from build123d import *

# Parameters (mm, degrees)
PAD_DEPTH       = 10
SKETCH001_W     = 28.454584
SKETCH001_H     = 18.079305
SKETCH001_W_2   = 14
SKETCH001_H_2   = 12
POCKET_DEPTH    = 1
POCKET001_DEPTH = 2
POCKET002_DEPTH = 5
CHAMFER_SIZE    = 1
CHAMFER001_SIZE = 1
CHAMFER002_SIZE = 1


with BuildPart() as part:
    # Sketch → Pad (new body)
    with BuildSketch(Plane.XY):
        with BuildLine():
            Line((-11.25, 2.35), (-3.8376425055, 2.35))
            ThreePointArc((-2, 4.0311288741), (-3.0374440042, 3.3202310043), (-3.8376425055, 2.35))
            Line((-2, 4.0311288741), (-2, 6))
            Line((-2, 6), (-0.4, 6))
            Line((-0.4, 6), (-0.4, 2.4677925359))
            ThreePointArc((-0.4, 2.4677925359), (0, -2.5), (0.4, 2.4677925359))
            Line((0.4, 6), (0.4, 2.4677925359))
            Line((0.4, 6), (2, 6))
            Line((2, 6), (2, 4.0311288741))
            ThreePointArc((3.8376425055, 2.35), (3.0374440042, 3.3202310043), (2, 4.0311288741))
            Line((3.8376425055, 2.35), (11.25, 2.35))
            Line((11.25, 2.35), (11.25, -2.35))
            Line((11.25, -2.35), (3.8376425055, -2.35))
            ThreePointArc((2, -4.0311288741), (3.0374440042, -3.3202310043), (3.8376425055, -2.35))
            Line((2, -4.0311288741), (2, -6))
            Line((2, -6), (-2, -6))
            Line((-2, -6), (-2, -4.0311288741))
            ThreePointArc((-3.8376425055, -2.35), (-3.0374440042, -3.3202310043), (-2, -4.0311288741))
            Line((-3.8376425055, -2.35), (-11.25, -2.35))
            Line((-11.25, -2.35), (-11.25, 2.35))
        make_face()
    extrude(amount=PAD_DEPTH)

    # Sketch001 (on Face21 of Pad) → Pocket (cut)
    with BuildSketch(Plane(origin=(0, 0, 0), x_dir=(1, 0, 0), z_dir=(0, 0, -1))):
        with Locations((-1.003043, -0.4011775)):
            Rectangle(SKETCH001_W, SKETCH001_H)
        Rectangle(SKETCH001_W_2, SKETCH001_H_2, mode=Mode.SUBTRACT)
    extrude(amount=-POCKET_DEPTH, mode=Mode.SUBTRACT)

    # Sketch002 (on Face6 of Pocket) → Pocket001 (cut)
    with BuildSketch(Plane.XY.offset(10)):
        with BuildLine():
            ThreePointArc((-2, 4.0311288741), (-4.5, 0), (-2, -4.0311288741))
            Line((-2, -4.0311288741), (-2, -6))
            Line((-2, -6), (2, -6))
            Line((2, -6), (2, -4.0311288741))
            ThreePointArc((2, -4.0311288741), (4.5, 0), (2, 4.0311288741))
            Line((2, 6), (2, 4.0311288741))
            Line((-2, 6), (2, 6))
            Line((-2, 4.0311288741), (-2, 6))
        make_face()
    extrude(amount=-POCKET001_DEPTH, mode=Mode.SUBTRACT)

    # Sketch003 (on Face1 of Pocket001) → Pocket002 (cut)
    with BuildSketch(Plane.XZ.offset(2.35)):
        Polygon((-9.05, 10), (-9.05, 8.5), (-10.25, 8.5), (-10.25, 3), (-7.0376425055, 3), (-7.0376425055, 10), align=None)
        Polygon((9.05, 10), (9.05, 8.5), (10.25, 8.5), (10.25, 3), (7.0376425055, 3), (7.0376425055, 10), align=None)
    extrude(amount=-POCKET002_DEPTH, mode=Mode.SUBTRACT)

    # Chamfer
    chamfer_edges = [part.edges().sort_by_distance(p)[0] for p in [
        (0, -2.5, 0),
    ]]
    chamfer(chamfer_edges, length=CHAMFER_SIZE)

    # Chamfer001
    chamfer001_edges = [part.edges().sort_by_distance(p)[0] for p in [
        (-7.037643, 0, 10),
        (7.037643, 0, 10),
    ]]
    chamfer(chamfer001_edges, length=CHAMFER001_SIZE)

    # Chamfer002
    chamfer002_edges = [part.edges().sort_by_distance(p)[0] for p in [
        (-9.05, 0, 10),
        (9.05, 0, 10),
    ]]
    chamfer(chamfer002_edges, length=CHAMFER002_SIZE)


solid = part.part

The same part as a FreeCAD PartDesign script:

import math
import FreeCAD as App
import Part
import Sketcher

V = App.Vector
Q = App.Units.Quantity


def edges_at(feature, points):
    """Names of the edges that pass closest to the given points."""
    edges = feature.Shape.Edges
    near = lambda p: min(range(len(edges)), key=lambda i: edges[i].distToShape(Part.Vertex(*p))[0])
    return sorted({f"Edge{near(p) + 1}" for p in points})


def add_polygon(sketch, points):
    """Adds a closed chain of lines whose ends are joined by coincident constraints."""
    first, n = sketch.GeometryCount, len(points)
    for a, b in zip(points, points[1:] + points[:1]):
        sketch.addGeometry(Part.LineSegment(App.Vector(*a, 0), App.Vector(*b, 0)), False)
    for i in range(n):
        sketch.addConstraint(Sketcher.Constraint("Coincident", first + i, 2, first + (i + 1) % n, 1))

doc = App.newDocument("Part")
body = doc.addObject("PartDesign::Body", "Body")

sketch1 = doc.addObject("Sketcher::SketchObject", "Sketch")
body.addObject(sketch1)
sketch1.AttachmentSupport = (doc.XY_Plane, [""])
sketch1.MapMode = "FlatFace"
sketch1.addGeometry([
    Part.LineSegment(V(-3.8, 2.4, 0), V(-11.2, 2.4, 0)),
    Part.LineSegment(V(-11.2, 2.4, 0), V(-11.2, -2.4, 0)),
    Part.LineSegment(V(-11.2, -2.4, 0), V(-3.8, -2.4, 0)),
    Part.ArcOfCircle(Part.Circle(V(0, 0, 0), V(0, 0, 1), 4.5), math.radians(-149), math.radians(-116)),
    Part.LineSegment(V(-2, -4, 0), V(-2, -6, 0)),
    Part.LineSegment(V(-2, -6, 0), V(2, -6, 0)),
    Part.LineSegment(V(2, -6, 0), V(2, -4, 0)),
    Part.ArcOfCircle(Part.Circle(V(0, 0, 0), V(0, 0, 1), 4.5), math.radians(-64), math.radians(-31)),
    Part.LineSegment(V(3.8, -2.4, 0), V(11.2, -2.4, 0)),
    Part.LineSegment(V(11.2, -2.4, 0), V(11.2, 2.4, 0)),
    Part.LineSegment(V(11.2, 2.4, 0), V(3.8, 2.4, 0)),
    Part.ArcOfCircle(Part.Circle(V(0, 0, 0), V(0, 0, 1), 4.5), math.radians(31), math.radians(64)),
    Part.LineSegment(V(2, 4, 0), V(2, 6, 0)),
    Part.LineSegment(V(2, 6, 0), V(0.4, 6, 0)),
    Part.LineSegment(V(0.4, 6, 0), V(0.4, 2.5, 0)),
    Part.ArcOfCircle(Part.Circle(V(0, 0, 0), V(0, 0, 1), 2.5), math.radians(99), math.radians(441)),
    Part.LineSegment(V(-0.4, 2.5, 0), V(-0.4, 6, 0)),
    Part.LineSegment(V(-0.4, 6, 0), V(-2, 6, 0)),
    Part.LineSegment(V(-2, 6, 0), V(-2, 4, 0)),
    Part.ArcOfCircle(Part.Circle(V(0, 0, 0), V(0, 0, 1), 4.5), math.radians(116), math.radians(149)),
], False)
sketch1.addConstraint([
    Sketcher.Constraint("Coincident", 0, 2, 1, 1),
    Sketcher.Constraint("Coincident", 1, 2, 2, 1),
    Sketcher.Constraint("Coincident", 2, 2, 3, 1),
    Sketcher.Constraint("Coincident", 3, 2, 4, 1),
    Sketcher.Constraint("Coincident", 4, 2, 5, 1),
    Sketcher.Constraint("Coincident", 5, 2, 6, 1),
    Sketcher.Constraint("Coincident", 6, 2, 7, 1),
    Sketcher.Constraint("Coincident", 7, 2, 8, 1),
    Sketcher.Constraint("Coincident", 8, 2, 9, 1),
    Sketcher.Constraint("Coincident", 9, 2, 10, 1),
    Sketcher.Constraint("Coincident", 10, 2, 11, 1),
    Sketcher.Constraint("Coincident", 11, 2, 12, 1),
    Sketcher.Constraint("Coincident", 12, 2, 13, 1),
    Sketcher.Constraint("Coincident", 13, 2, 14, 1),
    Sketcher.Constraint("Coincident", 14, 2, 15, 2),
    Sketcher.Constraint("Coincident", 15, 1, 16, 1),
    Sketcher.Constraint("Coincident", 16, 2, 17, 1),
    Sketcher.Constraint("Coincident", 17, 2, 18, 1),
    Sketcher.Constraint("Coincident", 18, 2, 19, 1),
    Sketcher.Constraint("Coincident", 19, 2, 0, 1),
    Sketcher.Constraint("Horizontal", 0),
    Sketcher.Constraint("Vertical", 1),
    Sketcher.Constraint("Horizontal", 2),
    Sketcher.Constraint("Vertical", 4),
    Sketcher.Constraint("Horizontal", 5),
    Sketcher.Constraint("Vertical", 6),
    Sketcher.Constraint("Horizontal", 8),
    Sketcher.Constraint("Vertical", 9),
    Sketcher.Constraint("Horizontal", 10),
    Sketcher.Constraint("Vertical", 12),
    Sketcher.Constraint("Horizontal", 13),
    Sketcher.Constraint("Vertical", 14),
    Sketcher.Constraint("Vertical", 16),
    Sketcher.Constraint("Horizontal", 17),
    Sketcher.Constraint("Vertical", 18),
    Sketcher.Constraint("Coincident", 3, 3, -1, 1),
    Sketcher.Constraint("Coincident", 7, 3, -1, 1),
    Sketcher.Constraint("Coincident", 11, 3, -1, 1),
    Sketcher.Constraint("Coincident", 15, 3, -1, 1),
    Sketcher.Constraint("Coincident", 19, 3, -1, 1),
    Sketcher.Constraint("Equal", 3, 7),
    Sketcher.Constraint("Equal", 7, 11),
    Sketcher.Constraint("Equal", 11, 19),
    Sketcher.Constraint("Symmetric", 0, 2, 8, 2, -1, 1),
    Sketcher.Constraint("Symmetric", 4, 2, 12, 2, -1, 1),
    Sketcher.Constraint("Symmetric", 5, 2, 17, 2, -1, 1),
    Sketcher.Constraint("Horizontal", 3, 2, 6, 2),
    Sketcher.Constraint("Horizontal", 2, 2, 7, 2),
    Sketcher.Constraint("Horizontal", 0, 2, 9, 2),
    Sketcher.Constraint("Horizontal", 14, 2, 15, 1),
    Sketcher.Constraint("Radius", 3, Q("4.5 mm")),
    Sketcher.Constraint("Radius", 15, Q("2.5 mm")),
    Sketcher.Constraint("DistanceX", 5, 1, 5, 2, Q("4 mm")),
    Sketcher.Constraint("DistanceX", 13, 2, 13, 1, Q("1.6 mm")),
    Sketcher.Constraint("DistanceY", 1, 2, 1, 1, Q("4.7 mm")),
    Sketcher.Constraint("DistanceY", 4, 2, -1, 1, Q("6 mm")),
    Sketcher.Constraint("DistanceX", 0, 2, -1, 1, Q("11.25 mm")),
])
pad1 = doc.addObject("PartDesign::Pad", "Pad")
body.addObject(pad1)
pad1.Profile = sketch1
pad1.Length = 10

sketch2 = doc.addObject("Sketcher::SketchObject", "Sketch001")
body.addObject(sketch2)
sketch2.AttachmentSupport = (doc.XY_Plane, [""])
sketch2.MapMode = "FlatFace"
add_polygon(sketch2, [(-15, -9), (-15, 9), (13, 9), (13, -9)])
add_polygon(sketch2, [(7, 6), (-7, 6), (-7, -6), (7, -6)])
sketch2.addConstraint([
    Sketcher.Constraint("Vertical", 0),
    Sketcher.Constraint("Horizontal", 1),
    Sketcher.Constraint("Vertical", 2),
    Sketcher.Constraint("Horizontal", 3),
    Sketcher.Constraint("Horizontal", 4),
    Sketcher.Constraint("Vertical", 5),
    Sketcher.Constraint("Horizontal", 6),
    Sketcher.Constraint("Vertical", 7),
    Sketcher.Constraint("Symmetric", 4, 2, 6, 2, -1, 1),
    Sketcher.Constraint("DistanceX", 4, 2, 4, 1, Q("14 mm")),
    Sketcher.Constraint("DistanceY", 5, 2, 5, 1, Q("12 mm")),
    Sketcher.Constraint("DistanceX", 1, 1, 1, 2, Q("28.454584 mm")),
    Sketcher.Constraint("DistanceY", 0, 1, 0, 2, Q("18.079305 mm")),
    Sketcher.Constraint("DistanceY", -1, 1, 0, 2, Q("9.44083 mm")),
    Sketcher.Constraint("DistanceX", -1, 1, 1, 2, Q("13.224249 mm")),
])
pocket1 = doc.addObject("PartDesign::Pocket", "Pocket")
body.addObject(pocket1)
pocket1.Profile = sketch2
pocket1.Length = 1
pocket1.Reversed = True

sketch3 = doc.addObject("Sketcher::SketchObject", "Sketch002")
body.addObject(sketch3)
sketch3.AttachmentSupport = (doc.XY_Plane, [""])
sketch3.MapMode = "FlatFace"
sketch3.AttachmentOffset = App.Placement(V(0, 0, 10), App.Rotation())
sketch3.addGeometry([
    Part.ArcOfCircle(Part.Circle(V(0, 0, 0), V(0, 0, 1), 4.5), math.radians(116), math.radians(244)),
    Part.LineSegment(V(-2, -4, 0), V(-2, -6, 0)),
    Part.LineSegment(V(-2, -6, 0), V(2, -6, 0)),
    Part.LineSegment(V(2, -6, 0), V(2, -4, 0)),
    Part.ArcOfCircle(Part.Circle(V(0, 0, 0), V(0, 0, 1), 4.5), math.radians(-64), math.radians(64)),
    Part.LineSegment(V(2, 4, 0), V(2, 6, 0)),
    Part.LineSegment(V(2, 6, 0), V(-2, 6, 0)),
    Part.LineSegment(V(-2, 6, 0), V(-2, 4, 0)),
], False)
sketch3.addConstraint([
    Sketcher.Constraint("Coincident", 0, 2, 1, 1),
    Sketcher.Constraint("Coincident", 1, 2, 2, 1),
    Sketcher.Constraint("Coincident", 2, 2, 3, 1),
    Sketcher.Constraint("Coincident", 3, 2, 4, 1),
    Sketcher.Constraint("Coincident", 4, 2, 5, 1),
    Sketcher.Constraint("Coincident", 5, 2, 6, 1),
    Sketcher.Constraint("Coincident", 6, 2, 7, 1),
    Sketcher.Constraint("Coincident", 7, 2, 0, 1),
    Sketcher.Constraint("Vertical", 1),
    Sketcher.Constraint("Horizontal", 2),
    Sketcher.Constraint("Vertical", 3),
    Sketcher.Constraint("Vertical", 5),
    Sketcher.Constraint("Horizontal", 6),
    Sketcher.Constraint("Vertical", 7),
    Sketcher.Constraint("Coincident", 0, 3, -1, 1),
    Sketcher.Constraint("Coincident", 4, 3, -1, 1),
    Sketcher.Constraint("Equal", 0, 4),
    Sketcher.Constraint("Symmetric", 1, 2, 5, 2, -1, 1),
    Sketcher.Constraint("Horizontal", 0, 2, 3, 2),
    Sketcher.Constraint("Horizontal", 4, 2, 7, 2),
    Sketcher.Constraint("Radius", 0, Q("4.5 mm")),
    Sketcher.Constraint("DistanceX", 2, 1, 2, 2, Q("4 mm")),
    Sketcher.Constraint("DistanceY", 1, 2, -1, 1, Q("6 mm")),
])
pocket2 = doc.addObject("PartDesign::Pocket", "Pocket001")
body.addObject(pocket2)
pocket2.Profile = sketch3
pocket2.Length = 2

sketch4 = doc.addObject("Sketcher::SketchObject", "Sketch003")
body.addObject(sketch4)
sketch4.AttachmentSupport = (doc.XZ_Plane, [""])
sketch4.MapMode = "FlatFace"
sketch4.AttachmentOffset = App.Placement(V(0, 0, 2.35), App.Rotation())
add_polygon(sketch4, [(-9.1, 10), (-9.1, 8.5), (-10.2, 8.5), (-10.2, 3), (-7, 3), (-7, 10)])
add_polygon(sketch4, [(9.1, 8.5), (9.1, 10), (7, 10), (7, 3), (10.2, 3), (10.2, 8.5)])
sketch4.addConstraint([
    Sketcher.Constraint("Vertical", 0),
    Sketcher.Constraint("Horizontal", 1),
    Sketcher.Constraint("Vertical", 2),
    Sketcher.Constraint("Horizontal", 3),
    Sketcher.Constraint("Vertical", 4),
    Sketcher.Constraint("Horizontal", 5),
    Sketcher.Constraint("Vertical", 6),
    Sketcher.Constraint("Horizontal", 7),
    Sketcher.Constraint("Vertical", 8),
    Sketcher.Constraint("Horizontal", 9),
    Sketcher.Constraint("Vertical", 10),
    Sketcher.Constraint("Horizontal", 11),
    Sketcher.Constraint("Symmetric", 5, 2, 6, 2, -2),
    Sketcher.Constraint("Symmetric", 3, 2, 8, 2, -2),
    Sketcher.Constraint("Symmetric", 1, 2, 10, 2, -2),
    Sketcher.Constraint("DistanceY", 4, 1, 4, 2, Q("7 mm")),
    Sketcher.Constraint("DistanceX", 1, 2, 1, 1, Q("1.2 mm")),
    Sketcher.Constraint("DistanceY", 0, 2, 0, 1, Q("1.5 mm")),
    Sketcher.Constraint("DistanceY", -1, 1, 2, 2, Q("3 mm")),
    Sketcher.Constraint("DistanceX", 5, 2, 6, 2, Q("18.1 mm")),
    Sketcher.Constraint("DistanceX", 3, 1, 3, 2, Q("3.212357 mm")),
])
pocket3 = doc.addObject("PartDesign::Pocket", "Pocket002")
body.addObject(pocket3)
pocket3.Profile = sketch4
pocket3.Length = 5
doc.recompute()

chamfer = doc.addObject("PartDesign::Chamfer", "Chamfer")
body.addObject(chamfer)
chamfer.Base = (pocket3, edges_at(pocket3, [(0, -2.5, 0)]))
chamfer.Size = 1
doc.recompute()

chamfer2 = doc.addObject("PartDesign::Chamfer", "Chamfer001")
body.addObject(chamfer2)
chamfer2.Base = (chamfer, edges_at(chamfer, [(-7.038, 0, 10), (7.038, 0, 10)]))
chamfer2.Size = 1
doc.recompute()

chamfer3 = doc.addObject("PartDesign::Chamfer", "Chamfer002")
body.addObject(chamfer3)
chamfer3.Base = (chamfer2, edges_at(chamfer2, [(-9.05, 0, 10), (9.05, 0, 10)]))
chamfer3.Size = 1

doc.recompute()
